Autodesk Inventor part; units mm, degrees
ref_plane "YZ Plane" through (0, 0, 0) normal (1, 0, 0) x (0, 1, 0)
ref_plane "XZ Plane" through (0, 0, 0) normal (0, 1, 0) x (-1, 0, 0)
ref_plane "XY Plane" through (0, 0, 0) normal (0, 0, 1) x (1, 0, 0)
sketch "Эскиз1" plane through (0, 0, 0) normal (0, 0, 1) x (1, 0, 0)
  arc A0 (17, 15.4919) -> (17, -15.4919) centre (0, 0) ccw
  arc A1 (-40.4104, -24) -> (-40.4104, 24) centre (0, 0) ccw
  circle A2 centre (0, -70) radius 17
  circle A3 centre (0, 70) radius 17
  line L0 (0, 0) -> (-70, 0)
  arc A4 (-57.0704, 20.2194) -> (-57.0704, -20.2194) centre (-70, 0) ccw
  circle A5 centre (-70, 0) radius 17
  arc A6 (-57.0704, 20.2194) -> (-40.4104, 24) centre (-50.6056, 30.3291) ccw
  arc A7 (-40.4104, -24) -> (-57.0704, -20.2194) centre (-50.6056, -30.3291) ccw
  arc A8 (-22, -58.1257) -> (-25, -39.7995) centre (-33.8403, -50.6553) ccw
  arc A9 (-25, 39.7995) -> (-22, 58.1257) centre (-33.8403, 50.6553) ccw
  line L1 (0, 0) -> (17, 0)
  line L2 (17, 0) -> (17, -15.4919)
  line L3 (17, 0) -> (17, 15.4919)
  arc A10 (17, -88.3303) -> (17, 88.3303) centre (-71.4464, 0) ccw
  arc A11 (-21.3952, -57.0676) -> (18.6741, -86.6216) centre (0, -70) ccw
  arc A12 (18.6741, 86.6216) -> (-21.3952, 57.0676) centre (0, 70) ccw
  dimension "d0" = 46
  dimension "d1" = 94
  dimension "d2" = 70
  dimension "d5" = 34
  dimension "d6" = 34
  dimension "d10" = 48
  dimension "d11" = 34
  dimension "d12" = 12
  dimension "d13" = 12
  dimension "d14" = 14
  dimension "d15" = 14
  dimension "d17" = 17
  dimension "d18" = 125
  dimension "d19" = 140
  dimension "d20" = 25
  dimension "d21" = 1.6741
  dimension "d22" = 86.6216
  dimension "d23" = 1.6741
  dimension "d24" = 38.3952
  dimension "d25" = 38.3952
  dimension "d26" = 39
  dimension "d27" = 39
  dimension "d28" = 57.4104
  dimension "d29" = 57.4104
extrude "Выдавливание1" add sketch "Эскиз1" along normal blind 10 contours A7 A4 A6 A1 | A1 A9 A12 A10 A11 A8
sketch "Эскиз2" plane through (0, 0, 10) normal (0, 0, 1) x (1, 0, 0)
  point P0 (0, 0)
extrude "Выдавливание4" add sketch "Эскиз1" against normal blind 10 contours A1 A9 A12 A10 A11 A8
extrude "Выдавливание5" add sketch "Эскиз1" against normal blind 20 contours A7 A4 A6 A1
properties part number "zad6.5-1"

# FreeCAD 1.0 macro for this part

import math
import FreeCAD as App
import Part
import Sketcher
from FreeCAD import Vector

doc = App.newDocument("Part")
body = doc.addObject("PartDesign::Body", "Body")

sketch1 = body.newObject("Sketcher::SketchObject", "Sketch")
sketch1.AttachmentSupport = (doc.getObject("XY_Plane"), [""])
sketch1.MapMode = "FlatFace"
sketch1.addGeometry(Part.ArcOfCircle(Part.Circle(Vector(-50.6056, -30.3291, 0), Vector(0, 0, 1), 11.999984), math.radians(31.831685), math.radians(122.597495)), False)
sketch1.addGeometry(Part.ArcOfCircle(Part.Circle(Vector(0, 0, 0), Vector(0, 0, 1), 47.000005), math.radians(-149.293647), math.radians(-122.134926)), False)
sketch1.addGeometry(Part.ArcOfCircle(Part.Circle(Vector(-33.8403, -50.6553, 0), Vector(0, 0, 1), 13.999985), math.radians(-32.249055), math.radians(50.842734)), False)
sketch1.addGeometry(Part.ArcOfCircle(Part.Circle(Vector(0, -70, 0), Vector(0, 0, 1), 25.000031), math.radians(151.642448), math.radians(312.843647)), False)
sketch1.addGeometry(Part.ArcOfCircle(Part.Circle(Vector(-71.4464, 0, 0), Vector(0, 0, 1), 125.00003), math.radians(-44.96237), math.radians(44.96237)), False)
sketch1.addGeometry(Part.ArcOfCircle(Part.Circle(Vector(0, 70, 0), Vector(0, 0, 1), 24.999992), math.radians(47.156353), math.radians(208.357552)), False)
sketch1.addGeometry(Part.ArcOfCircle(Part.Circle(Vector(-33.8403, 50.6553, 0), Vector(0, 0, 1), 13.999975), math.radians(-50.842734), math.radians(32.249055)), False)
sketch1.addGeometry(Part.ArcOfCircle(Part.Circle(Vector(0, 0, 0), Vector(0, 0, 1), 47.000005), math.radians(122.134926), math.radians(149.293647)), False)
sketch1.addGeometry(Part.ArcOfCircle(Part.Circle(Vector(-50.6056, 30.3291, 0), Vector(0, 0, 1), 11.999986), math.radians(-122.597495), math.radians(-31.831685)), False)
sketch1.addGeometry(Part.ArcOfCircle(Part.Circle(Vector(-70, 0, 0), Vector(0, 0, 1), 23.999973), math.radians(57.402505), math.radians(302.597495)), False)
sketch1.addGeometry(Part.Circle(Vector(-70, 0, 0), Vector(0, 0, 1), 17), False)
sketch1.addGeometry(Part.ArcOfCircle(Part.Circle(Vector(0, 0, 0), Vector(0, 0, 1), 22.999978), math.radians(42.342544), math.radians(180)), False)
sketch1.addGeometry(Part.LineSegment(Vector(17, 15.4919, 0), Vector(17, -15.4919, 0)), False)
sketch1.addGeometry(Part.ArcOfCircle(Part.Circle(Vector(0, 0, 0), Vector(0, 0, 1), 22.999978), math.radians(180), math.radians(317.657456)), False)
sketch1.addGeometry(Part.Circle(Vector(0, 70, 0), Vector(0, 0, 1), 17), False)
sketch1.addGeometry(Part.Circle(Vector(0, -70, 0), Vector(0, 0, 1), 17), False)
sketch1.addConstraint(Sketcher.Constraint("Coincident", 0, 1, 1, 1))
sketch1.addConstraint(Sketcher.Constraint("Coincident", 1, 2, 2, 2))
sketch1.addConstraint(Sketcher.Constraint("Coincident", 2, 1, 3, 1))
sketch1.addConstraint(Sketcher.Constraint("Coincident", 3, 2, 4, 1))
sketch1.addConstraint(Sketcher.Constraint("Coincident", 4, 2, 5, 1))
sketch1.addConstraint(Sketcher.Constraint("Coincident", 5, 2, 6, 2))
sketch1.addConstraint(Sketcher.Constraint("Coincident", 6, 1, 7, 1))
sketch1.addConstraint(Sketcher.Constraint("Coincident", 7, 2, 8, 2))
sketch1.addConstraint(Sketcher.Constraint("Tangent", 8, 1, 9, 1))
sketch1.addConstraint(Sketcher.Constraint("Tangent", 9, 2, 0, 2))
sketch1.addConstraint(Sketcher.Constraint("Coincident", 11, 1, 12, 1))
sketch1.addConstraint(Sketcher.Constraint("Coincident", 12, 2, 13, 2))
sketch1.addConstraint(Sketcher.Constraint("Tangent", 13, 1, 11, 2))
sketch1.addConstraint(Sketcher.Constraint("Vertical", 12))
sketch1.addConstraint(Sketcher.Constraint("Coincident", 1, 3, -1, 1))
sketch1.addConstraint(Sketcher.Constraint("Coincident", 7, 3, -1, 1))
sketch1.addConstraint(Sketcher.Constraint("Coincident", 11, 3, -1, 1))
sketch1.addConstraint(Sketcher.Constraint("Coincident", 10, 3, 9, 3))
sketch1.addConstraint(Sketcher.Constraint("Coincident", 14, 3, 5, 3))
sketch1.addConstraint(Sketcher.Constraint("Coincident", 15, 3, 3, 3))
sketch1.addConstraint(Sketcher.Constraint("Equal", 3, 5))
sketch1.addConstraint(Sketcher.Constraint("Equal", 2, 6))
sketch1.addConstraint(Sketcher.Constraint("Equal", 1, 7))
sketch1.addConstraint(Sketcher.Constraint("Equal", 0, 8))
sketch1.addConstraint(Sketcher.Constraint("Equal", 11, 13))
sketch1.addConstraint(Sketcher.Constraint("Equal", 10, 14))
sketch1.addConstraint(Sketcher.Constraint("Equal", 14, 15))
sketch1.addConstraint(Sketcher.Constraint("Symmetric", 3, 3, 5, 3, -1, 1))
sketch1.addConstraint(Sketcher.Constraint("Symmetric", 2, 3, 6, 3, -1))
sketch1.addConstraint(Sketcher.Constraint("Symmetric", 0, 3, 8, 3, -1))
sketch1.addConstraint(Sketcher.Constraint("Symmetric", 3, 2, 4, 2, -1))
sketch1.addConstraint(Sketcher.Constraint("PointOnObject", 13, 1, -1))
sketch1.addConstraint(Sketcher.Constraint("Vertical", 4, 2, 11, 1))
sketch1.addConstraint(Sketcher.Constraint("Diameter", 10, 34.0))
sketch1.addConstraint(Sketcher.Constraint("Radius", 0, 12.0))
sketch1.addConstraint(Sketcher.Constraint("Radius", 1, 47.0))
sketch1.addConstraint(Sketcher.Constraint("Radius", 2, 14.0))
sketch1.addConstraint(Sketcher.Constraint("Radius", 3, 25.0))
sketch1.addConstraint(Sketcher.Constraint("Radius", 4, 125.0))
sketch1.addConstraint(Sketcher.Constraint("Radius", 9, 24.0))
sketch1.addConstraint(Sketcher.Constraint("Radius", 11, 23.0))
sketch1.addConstraint(Sketcher.Constraint("DistanceY", 3, 3, -1, 1, 70.0))
sketch1.addConstraint(Sketcher.Constraint("DistanceX", 9, 3, -1, 1, 70.0))
sketch1.addConstraint(Sketcher.Constraint("DistanceX", 1, 2, -1, 1, 25.0))
sketch1.addConstraint(Sketcher.Constraint("DistanceX", -1, 1, 3, 2, 17.0))
sketch1.addConstraint(Sketcher.Constraint("DistanceX", 2, 1, 3, 2, 39.0))
sketch1.addConstraint(Sketcher.Constraint("DistanceY", 0, 1, -1, 1, 24.0))
pad1 = body.newObject("PartDesign::Pad", "Pad")
pad1.Profile = sketch1
pad1.Length = 10

sketch2 = body.newObject("Sketcher::SketchObject", "Sketch001")
sketch2.AttachmentSupport = (doc.getObject("XY_Plane"), [""])
sketch2.MapMode = "FlatFace"
sketch2.addGeometry(Part.ArcOfCircle(Part.Circle(Vector(0, 0, 0), Vector(0, 0, 1), 47), math.radians(-122), math.radians(122)), False)
sketch2.addGeometry(Part.ArcOfCircle(Part.Circle(Vector(-34, -51, 0), Vector(0, 0, 1), 14), math.radians(-32), math.radians(51)), False)
sketch2.addGeometry(Part.ArcOfCircle(Part.Circle(Vector(0, -70, 0), Vector(0, 0, 1), 25), math.radians(152), math.radians(313)), False)
sketch2.addGeometry(Part.ArcOfCircle(Part.Circle(Vector(-71, 0, 0), Vector(0, 0, 1), 125), math.radians(-45), math.radians(45)), False)
sketch2.addGeometry(Part.ArcOfCircle(Part.Circle(Vector(0, 70, 0), Vector(0, 0, 1), 25), math.radians(47), math.radians(208)), False)
sketch2.addGeometry(Part.ArcOfCircle(Part.Circle(Vector(-34, 51, 0), Vector(0, 0, 1), 14), math.radians(-51), math.radians(32)), False)
sketch2.addGeometry(Part.Circle(Vector(0, -70, 0), Vector(0, 0, 1), 17), False)
sketch2.addGeometry(Part.Circle(Vector(0, 70, 0), Vector(0, 0, 1), 17), False)
sketch2.addConstraint(Sketcher.Constraint("Coincident", 0, 1, 1, 2))
sketch2.addConstraint(Sketcher.Constraint("Coincident", 1, 1, 2, 1))
sketch2.addConstraint(Sketcher.Constraint("Coincident", 2, 2, 3, 1))
sketch2.addConstraint(Sketcher.Constraint("Coincident", 3, 2, 4, 1))
sketch2.addConstraint(Sketcher.Constraint("Coincident", 4, 2, 5, 2))
sketch2.addConstraint(Sketcher.Constraint("Coincident", 5, 1, 0, 2))
sketch2.addConstraint(Sketcher.Constraint("Coincident", 0, 3, -1, 1))
sketch2.addConstraint(Sketcher.Constraint("Coincident", 6, 3, 2, 3))
sketch2.addConstraint(Sketcher.Constraint("Coincident", 7, 3, 4, 3))
sketch2.addConstraint(Sketcher.Constraint("Equal", 2, 4))
sketch2.addConstraint(Sketcher.Constraint("Equal", 1, 5))
sketch2.addConstraint(Sketcher.Constraint("Equal", 6, 7))
sketch2.addConstraint(Sketcher.Constraint("Symmetric", 2, 3, 4, 3, -1, 1))
sketch2.addConstraint(Sketcher.Constraint("Symmetric", 1, 3, 5, 3, -1))
sketch2.addConstraint(Sketcher.Constraint("Symmetric", 2, 2, 3, 2, -1))
sketch2.addConstraint(Sketcher.Constraint("Diameter", 6, 34.0))
sketch2.addConstraint(Sketcher.Constraint("Radius", 0, 47.0))
sketch2.addConstraint(Sketcher.Constraint("Radius", 1, 14.0))
sketch2.addConstraint(Sketcher.Constraint("Radius", 2, 25.0))
sketch2.addConstraint(Sketcher.Constraint("Radius", 3, 125.0))
sketch2.addConstraint(Sketcher.Constraint("DistanceY", 2, 3, -1, 1, 70.0))
sketch2.addConstraint(Sketcher.Constraint("DistanceX", 0, 1, -1, 1, 25.0))
sketch2.addConstraint(Sketcher.Constraint("DistanceX", -1, 1, 2, 2, 17.0))
sketch2.addConstraint(Sketcher.Constraint("DistanceX", 1, 1, 2, 2, 39.0))
pad2 = body.newObject("PartDesign::Pad", "Pad001")
pad2.Profile = sketch2
pad2.Length = 10
pad2.Reversed = True

sketch3 = body.newObject("Sketcher::SketchObject", "Sketch002")
sketch3.AttachmentSupport = (doc.getObject("XY_Plane"), [""])
sketch3.MapMode = "FlatFace"
sketch3.addGeometry(Part.ArcOfCircle(Part.Circle(Vector(-51, -30, 0), Vector(0, 0, 1), 12), math.radians(32), math.radians(123)), False)
sketch3.addGeometry(Part.ArcOfCircle(Part.Circle(Vector(0, 0, 0), Vector(0, 0, 1), 47), math.radians(-149), math.radians(149)), False)
sketch3.addGeometry(Part.ArcOfCircle(Part.Circle(Vector(-51, 30, 0), Vector(0, 0, 1), 12), math.radians(-123), math.radians(-32)), False)
sketch3.addGeometry(Part.ArcOfCircle(Part.Circle(Vector(-70, 0, 0), Vector(0, 0, 1), 24), math.radians(57), math.radians(303)), False)
sketch3.addGeometry(Part.Circle(Vector(-70, 0, 0), Vector(0, 0, 1), 17), False)
sketch3.addGeometry(Part.ArcOfCircle(Part.Circle(Vector(0, 0, 0), Vector(0, 0, 1), 23), math.radians(42), math.radians(180)), False)
sketch3.addGeometry(Part.LineSegment(Vector(17, 15, 0), Vector(17, -15, 0)), False)
sketch3.addGeometry(Part.ArcOfCircle(Part.Circle(Vector(0, 0, 0), Vector(0, 0, 1), 23), math.radians(180), math.radians(318)), False)
sketch3.addConstraint(Sketcher.Constraint("Coincident", 0, 1, 1, 1))
sketch3.addConstraint(Sketcher.Constraint("Coincident", 1, 2, 2, 2))
sketch3.addConstraint(Sketcher.Constraint("Tangent", 2, 1, 3, 1))
sketch3.addConstraint(Sketcher.Constraint("Tangent", 3, 2, 0, 2))
sketch3.addConstraint(Sketcher.Constraint("Coincident", 5, 1, 6, 1))
sketch3.addConstraint(Sketcher.Constraint("Coincident", 6, 2, 7, 2))
sketch3.addConstraint(Sketcher.Constraint("Tangent", 7, 1, 5, 2))
sketch3.addConstraint(Sketcher.Constraint("Vertical", 6))
sketch3.addConstraint(Sketcher.Constraint("Coincident", 1, 3, -1, 1))
sketch3.addConstraint(Sketcher.Constraint("Coincident", 5, 3, -1, 1))
sketch3.addConstraint(Sketcher.Constraint("Coincident", 4, 3, 3, 3))
sketch3.addConstraint(Sketcher.Constraint("Equal", 0, 2))
sketch3.addConstraint(Sketcher.Constraint("Equal", 5, 7))
sketch3.addConstraint(Sketcher.Constraint("Symmetric", 0, 3, 2, 3, -1))
sketch3.addConstraint(Sketcher.Constraint("PointOnObject", 7, 1, -1))
sketch3.addConstraint(Sketcher.Constraint("Diameter", 4, 34.0))
sketch3.addConstraint(Sketcher.Constraint("Radius", 0, 12.0))
sketch3.addConstraint(Sketcher.Constraint("Radius", 1, 47.0))
sketch3.addConstraint(Sketcher.Constraint("Radius", 3, 24.0))
sketch3.addConstraint(Sketcher.Constraint("Radius", 5, 23.0))
sketch3.addConstraint(Sketcher.Constraint("DistanceX", 3, 3, -1, 1, 70.0))
sketch3.addConstraint(Sketcher.Constraint("DistanceX", -1, 1, 5, 1, 17.0))
sketch3.addConstraint(Sketcher.Constraint("DistanceY", 0, 1, -1, 1, 24.0))
pad3 = body.newObject("PartDesign::Pad", "Pad002")
pad3.Profile = sketch3
pad3.Length = 20
pad3.Reversed = True

doc.recompute()
